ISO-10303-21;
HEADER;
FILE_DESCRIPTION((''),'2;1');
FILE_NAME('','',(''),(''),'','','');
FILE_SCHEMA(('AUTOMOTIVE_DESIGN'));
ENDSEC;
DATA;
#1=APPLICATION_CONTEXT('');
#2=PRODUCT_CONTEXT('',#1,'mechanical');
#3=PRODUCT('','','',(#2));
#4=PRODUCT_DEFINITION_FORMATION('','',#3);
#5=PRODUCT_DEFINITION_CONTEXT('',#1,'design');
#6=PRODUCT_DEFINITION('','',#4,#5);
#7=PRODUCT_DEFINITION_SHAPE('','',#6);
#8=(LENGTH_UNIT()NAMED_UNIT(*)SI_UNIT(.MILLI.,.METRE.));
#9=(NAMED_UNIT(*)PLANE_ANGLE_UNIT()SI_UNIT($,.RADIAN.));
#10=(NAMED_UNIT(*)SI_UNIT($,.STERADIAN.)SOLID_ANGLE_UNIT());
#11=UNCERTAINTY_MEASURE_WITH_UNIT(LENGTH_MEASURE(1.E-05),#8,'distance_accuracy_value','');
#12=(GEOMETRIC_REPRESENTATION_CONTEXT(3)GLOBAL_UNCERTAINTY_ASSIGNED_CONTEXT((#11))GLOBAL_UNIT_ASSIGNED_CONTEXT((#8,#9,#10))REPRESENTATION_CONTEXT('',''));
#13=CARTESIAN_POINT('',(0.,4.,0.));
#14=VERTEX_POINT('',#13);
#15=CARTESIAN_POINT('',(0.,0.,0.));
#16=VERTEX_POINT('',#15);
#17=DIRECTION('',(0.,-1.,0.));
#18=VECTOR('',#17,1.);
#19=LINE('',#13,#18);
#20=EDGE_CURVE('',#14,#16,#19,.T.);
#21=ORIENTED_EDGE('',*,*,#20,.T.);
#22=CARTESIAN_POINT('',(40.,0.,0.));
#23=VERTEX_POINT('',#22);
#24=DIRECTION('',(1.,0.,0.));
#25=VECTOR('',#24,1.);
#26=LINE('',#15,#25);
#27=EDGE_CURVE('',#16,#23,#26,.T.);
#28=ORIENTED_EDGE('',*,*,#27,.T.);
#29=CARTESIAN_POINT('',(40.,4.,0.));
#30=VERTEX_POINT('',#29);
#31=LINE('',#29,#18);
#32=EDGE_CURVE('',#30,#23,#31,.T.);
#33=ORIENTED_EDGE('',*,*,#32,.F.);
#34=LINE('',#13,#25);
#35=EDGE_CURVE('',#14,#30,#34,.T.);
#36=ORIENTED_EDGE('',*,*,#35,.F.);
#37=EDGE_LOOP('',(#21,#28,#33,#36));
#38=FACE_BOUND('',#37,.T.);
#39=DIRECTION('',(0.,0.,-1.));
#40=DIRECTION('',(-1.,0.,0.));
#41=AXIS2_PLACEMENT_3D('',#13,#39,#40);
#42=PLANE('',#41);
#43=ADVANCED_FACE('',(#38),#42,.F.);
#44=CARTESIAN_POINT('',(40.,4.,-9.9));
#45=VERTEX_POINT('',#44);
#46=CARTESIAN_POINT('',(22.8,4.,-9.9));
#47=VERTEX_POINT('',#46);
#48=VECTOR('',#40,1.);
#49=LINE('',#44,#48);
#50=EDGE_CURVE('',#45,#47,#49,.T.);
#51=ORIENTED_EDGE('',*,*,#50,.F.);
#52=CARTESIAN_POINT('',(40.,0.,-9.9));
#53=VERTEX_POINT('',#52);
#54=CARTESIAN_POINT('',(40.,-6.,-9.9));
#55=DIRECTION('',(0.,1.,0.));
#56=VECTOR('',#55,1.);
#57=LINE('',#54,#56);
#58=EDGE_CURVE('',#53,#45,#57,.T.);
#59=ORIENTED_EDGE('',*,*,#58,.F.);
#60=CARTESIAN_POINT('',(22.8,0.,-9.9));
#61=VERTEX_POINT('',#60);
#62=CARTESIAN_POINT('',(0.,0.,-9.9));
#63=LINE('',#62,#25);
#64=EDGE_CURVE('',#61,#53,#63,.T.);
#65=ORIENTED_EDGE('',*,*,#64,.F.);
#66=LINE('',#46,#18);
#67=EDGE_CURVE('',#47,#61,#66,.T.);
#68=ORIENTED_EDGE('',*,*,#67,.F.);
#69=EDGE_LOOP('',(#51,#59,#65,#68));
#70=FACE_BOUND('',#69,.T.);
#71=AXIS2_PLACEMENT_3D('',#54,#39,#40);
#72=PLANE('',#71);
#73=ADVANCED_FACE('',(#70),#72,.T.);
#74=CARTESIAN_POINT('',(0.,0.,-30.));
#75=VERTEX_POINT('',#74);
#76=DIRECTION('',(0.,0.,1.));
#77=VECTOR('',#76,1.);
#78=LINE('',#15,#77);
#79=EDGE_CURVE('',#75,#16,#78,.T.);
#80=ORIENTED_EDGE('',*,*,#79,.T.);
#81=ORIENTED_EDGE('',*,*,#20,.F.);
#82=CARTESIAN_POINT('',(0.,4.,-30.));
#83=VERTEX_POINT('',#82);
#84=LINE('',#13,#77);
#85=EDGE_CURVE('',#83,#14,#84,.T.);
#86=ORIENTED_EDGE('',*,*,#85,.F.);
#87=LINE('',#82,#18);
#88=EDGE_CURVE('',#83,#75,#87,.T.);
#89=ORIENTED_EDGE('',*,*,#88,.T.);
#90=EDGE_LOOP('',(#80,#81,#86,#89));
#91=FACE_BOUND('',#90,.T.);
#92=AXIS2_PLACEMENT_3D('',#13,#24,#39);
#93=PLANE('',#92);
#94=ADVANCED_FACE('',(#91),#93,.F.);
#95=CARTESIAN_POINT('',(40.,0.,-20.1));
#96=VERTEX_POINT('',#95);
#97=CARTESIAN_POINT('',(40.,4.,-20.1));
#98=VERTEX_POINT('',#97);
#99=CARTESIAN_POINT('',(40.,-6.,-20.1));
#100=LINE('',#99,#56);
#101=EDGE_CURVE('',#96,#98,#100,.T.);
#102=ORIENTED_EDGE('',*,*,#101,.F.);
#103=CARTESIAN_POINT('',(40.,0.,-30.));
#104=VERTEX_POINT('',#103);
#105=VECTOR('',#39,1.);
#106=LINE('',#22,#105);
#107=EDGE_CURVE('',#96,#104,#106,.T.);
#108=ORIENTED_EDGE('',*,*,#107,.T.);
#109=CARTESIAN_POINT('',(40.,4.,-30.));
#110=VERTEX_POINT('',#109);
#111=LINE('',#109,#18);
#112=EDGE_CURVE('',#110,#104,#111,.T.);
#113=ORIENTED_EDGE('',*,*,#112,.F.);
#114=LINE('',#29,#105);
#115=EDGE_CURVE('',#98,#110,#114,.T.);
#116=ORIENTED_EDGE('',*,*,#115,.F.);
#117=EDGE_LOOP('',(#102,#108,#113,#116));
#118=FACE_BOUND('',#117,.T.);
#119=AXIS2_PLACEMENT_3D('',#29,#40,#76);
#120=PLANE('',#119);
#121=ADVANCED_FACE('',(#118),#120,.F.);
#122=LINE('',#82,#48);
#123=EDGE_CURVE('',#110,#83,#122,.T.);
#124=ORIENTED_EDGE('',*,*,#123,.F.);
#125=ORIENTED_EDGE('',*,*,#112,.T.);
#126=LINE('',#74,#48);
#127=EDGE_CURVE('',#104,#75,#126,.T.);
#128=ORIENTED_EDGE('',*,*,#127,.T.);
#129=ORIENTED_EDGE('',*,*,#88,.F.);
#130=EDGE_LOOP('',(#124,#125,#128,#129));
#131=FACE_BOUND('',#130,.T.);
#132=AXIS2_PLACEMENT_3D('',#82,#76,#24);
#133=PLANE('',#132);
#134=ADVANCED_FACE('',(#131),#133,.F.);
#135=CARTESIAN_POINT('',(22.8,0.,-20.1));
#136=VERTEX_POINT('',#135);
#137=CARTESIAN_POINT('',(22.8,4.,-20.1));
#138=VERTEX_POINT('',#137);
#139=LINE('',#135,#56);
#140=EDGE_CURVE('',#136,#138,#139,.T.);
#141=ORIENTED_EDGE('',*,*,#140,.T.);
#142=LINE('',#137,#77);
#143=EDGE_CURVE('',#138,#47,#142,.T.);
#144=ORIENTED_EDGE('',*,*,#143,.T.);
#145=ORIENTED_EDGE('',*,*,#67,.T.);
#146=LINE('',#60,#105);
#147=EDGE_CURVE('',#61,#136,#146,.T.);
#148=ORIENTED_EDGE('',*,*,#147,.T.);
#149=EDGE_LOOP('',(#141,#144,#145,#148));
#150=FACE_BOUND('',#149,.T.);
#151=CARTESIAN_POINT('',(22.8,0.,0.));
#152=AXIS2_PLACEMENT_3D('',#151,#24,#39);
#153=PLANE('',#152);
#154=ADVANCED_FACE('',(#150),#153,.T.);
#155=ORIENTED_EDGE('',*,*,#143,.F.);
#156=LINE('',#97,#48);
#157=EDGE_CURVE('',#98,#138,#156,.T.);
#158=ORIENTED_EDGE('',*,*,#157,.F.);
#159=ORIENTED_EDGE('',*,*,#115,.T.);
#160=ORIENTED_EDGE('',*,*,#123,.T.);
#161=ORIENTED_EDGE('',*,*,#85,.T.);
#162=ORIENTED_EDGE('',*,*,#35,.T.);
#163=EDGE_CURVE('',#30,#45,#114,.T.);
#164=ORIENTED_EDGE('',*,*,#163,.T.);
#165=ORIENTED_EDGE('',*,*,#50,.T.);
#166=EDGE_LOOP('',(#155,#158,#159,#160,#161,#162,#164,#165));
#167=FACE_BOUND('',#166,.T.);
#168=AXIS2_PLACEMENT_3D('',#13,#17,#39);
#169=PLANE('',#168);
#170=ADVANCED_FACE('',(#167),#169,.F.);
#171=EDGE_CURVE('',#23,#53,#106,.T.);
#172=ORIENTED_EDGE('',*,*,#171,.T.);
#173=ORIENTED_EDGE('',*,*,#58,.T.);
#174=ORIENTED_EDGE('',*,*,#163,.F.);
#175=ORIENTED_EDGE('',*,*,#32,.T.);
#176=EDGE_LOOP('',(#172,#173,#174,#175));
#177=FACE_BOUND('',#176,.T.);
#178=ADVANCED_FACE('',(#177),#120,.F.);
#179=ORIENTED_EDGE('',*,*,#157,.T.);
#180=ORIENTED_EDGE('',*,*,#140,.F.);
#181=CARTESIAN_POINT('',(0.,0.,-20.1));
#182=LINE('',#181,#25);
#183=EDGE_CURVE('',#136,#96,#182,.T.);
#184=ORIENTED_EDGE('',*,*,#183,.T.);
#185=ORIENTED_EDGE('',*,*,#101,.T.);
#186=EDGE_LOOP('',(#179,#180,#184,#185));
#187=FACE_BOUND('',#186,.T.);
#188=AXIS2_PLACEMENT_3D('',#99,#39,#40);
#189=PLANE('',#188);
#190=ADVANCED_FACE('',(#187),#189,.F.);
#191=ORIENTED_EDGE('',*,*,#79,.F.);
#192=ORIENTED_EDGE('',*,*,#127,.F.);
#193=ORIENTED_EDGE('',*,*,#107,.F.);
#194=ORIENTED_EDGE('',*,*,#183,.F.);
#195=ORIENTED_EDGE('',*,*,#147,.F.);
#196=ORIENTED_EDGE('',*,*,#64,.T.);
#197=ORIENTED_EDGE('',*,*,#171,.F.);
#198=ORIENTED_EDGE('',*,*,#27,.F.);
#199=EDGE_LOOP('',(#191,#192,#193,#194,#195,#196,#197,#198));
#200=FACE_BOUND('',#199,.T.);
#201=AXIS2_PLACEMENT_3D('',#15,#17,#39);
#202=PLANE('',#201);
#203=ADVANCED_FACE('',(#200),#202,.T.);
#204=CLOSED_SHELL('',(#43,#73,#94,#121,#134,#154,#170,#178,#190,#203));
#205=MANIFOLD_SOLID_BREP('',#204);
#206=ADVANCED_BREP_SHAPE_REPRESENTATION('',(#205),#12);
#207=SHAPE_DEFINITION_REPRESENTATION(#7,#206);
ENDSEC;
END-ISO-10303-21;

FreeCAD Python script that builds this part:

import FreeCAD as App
import Part
import Sketcher
Q = App.Units.Quantity


def add_polygon(sketch, points):
    """Adds a closed chain of lines whose ends are joined by coincident constraints."""
    first, n = sketch.GeometryCount, len(points)
    for a, b in zip(points, points[1:] + points[:1]):
        sketch.addGeometry(Part.LineSegment(App.Vector(*a, 0), App.Vector(*b, 0)), False)
    for i in range(n):
        sketch.addConstraint(Sketcher.Constraint("Coincident", first + i, 2, first + (i + 1) % n, 1))

doc = App.newDocument("Part")
body = doc.addObject("PartDesign::Body", "Body")

# Sketch on XZ plane
sketch1 = body.newObject("Sketcher::SketchObject", "Sketch")
sketch1.AttachmentSupport = (doc.getObject("XZ_Plane"), [""])
sketch1.MapMode = "FlatFace"
add_polygon(sketch1, [(0, -30), (0, 0), (40, 0), (40, -30)])  # lines 0-3
sketch1.addConstraint([
    Sketcher.Constraint("Vertical", 0),
    Sketcher.Constraint("Horizontal", 1),
    Sketcher.Constraint("Vertical", 2),
    Sketcher.Constraint("Horizontal", 3),
    Sketcher.Constraint("Coincident", 0, 2, -1, 1),
    Sketcher.Constraint("DistanceX", 1, 1, 1, 2, Q("40 mm")),
    Sketcher.Constraint("DistanceY", 0, 1, 0, 2, Q("30 mm")),
])
pad1 = body.newObject("PartDesign::Pad", "Pad")
pad1.Profile = sketch1
pad1.Length = 4
pad1.Reversed = True

# Sketch on XZ plane
sketch2 = body.newObject("Sketcher::SketchObject", "Sketch001")
sketch2.AttachmentSupport = (doc.getObject("XZ_Plane"), [""])
sketch2.MapMode = "FlatFace"
sketch2.AttachmentOffset = App.Placement(App.Vector(0, 0, -4), App.Rotation())
add_polygon(sketch2, [(18, -20), (18, -10), (40, -10), (40, -20)])  # lines 0-3
sketch2.addConstraint([
    Sketcher.Constraint("Vertical", 0),
    Sketcher.Constraint("Horizontal", 1),
    Sketcher.Constraint("Vertical", 2),
    Sketcher.Constraint("Horizontal", 3),
    Sketcher.Constraint("DistanceX", 1, 1, 1, 2, Q("22.2 mm")),
    Sketcher.Constraint("DistanceY", 0, 1, 0, 2, Q("10.2 mm")),
    Sketcher.Constraint("DistanceX", -1, 1, 1, 2, Q("40 mm")),
    Sketcher.Constraint("DistanceY", 0, 2, -1, 1, Q("9.9 mm")),
])
pocket1 = body.newObject("PartDesign::Pocket", "Pocket")
pocket1.Profile = sketch2
pocket1.Length = 10
pocket1.Reversed = True

# Sketch on YZ plane
sketch3 = body.newObject("Sketcher::SketchObject", "Sketch002")
sketch3.AttachmentSupport = (doc.getObject("YZ_Plane"), [""])
sketch3.MapMode = "FlatFace"
sketch3.AttachmentOffset = App.Placement(App.Vector(0, 0, 17.8), App.Rotation())
add_polygon(sketch3, [(4, -9.9), (0, -9.9), (0, -20.1), (4, -20.1)])  # lines 0-3
sketch3.addConstraint([
    Sketcher.Constraint("Horizontal", 0),
    Sketcher.Constraint("Vertical", 1),
    Sketcher.Constraint("Horizontal", 2),
    Sketcher.Constraint("Vertical", 3),
    Sketcher.Constraint("PointOnObject", 0, 2, -2),
    Sketcher.Constraint("DistanceX", 0, 2, 0, 1, Q("4 mm")),
    Sketcher.Constraint("DistanceY", 1, 2, 1, 1, Q("10.2 mm")),
    Sketcher.Constraint("DistanceY", 0, 2, -1, 1, Q("9.9 mm")),
])
pad2 = body.newObject("PartDesign::Pad", "Pad001")
pad2.Profile = sketch3
pad2.Length = 5

doc.recompute()
